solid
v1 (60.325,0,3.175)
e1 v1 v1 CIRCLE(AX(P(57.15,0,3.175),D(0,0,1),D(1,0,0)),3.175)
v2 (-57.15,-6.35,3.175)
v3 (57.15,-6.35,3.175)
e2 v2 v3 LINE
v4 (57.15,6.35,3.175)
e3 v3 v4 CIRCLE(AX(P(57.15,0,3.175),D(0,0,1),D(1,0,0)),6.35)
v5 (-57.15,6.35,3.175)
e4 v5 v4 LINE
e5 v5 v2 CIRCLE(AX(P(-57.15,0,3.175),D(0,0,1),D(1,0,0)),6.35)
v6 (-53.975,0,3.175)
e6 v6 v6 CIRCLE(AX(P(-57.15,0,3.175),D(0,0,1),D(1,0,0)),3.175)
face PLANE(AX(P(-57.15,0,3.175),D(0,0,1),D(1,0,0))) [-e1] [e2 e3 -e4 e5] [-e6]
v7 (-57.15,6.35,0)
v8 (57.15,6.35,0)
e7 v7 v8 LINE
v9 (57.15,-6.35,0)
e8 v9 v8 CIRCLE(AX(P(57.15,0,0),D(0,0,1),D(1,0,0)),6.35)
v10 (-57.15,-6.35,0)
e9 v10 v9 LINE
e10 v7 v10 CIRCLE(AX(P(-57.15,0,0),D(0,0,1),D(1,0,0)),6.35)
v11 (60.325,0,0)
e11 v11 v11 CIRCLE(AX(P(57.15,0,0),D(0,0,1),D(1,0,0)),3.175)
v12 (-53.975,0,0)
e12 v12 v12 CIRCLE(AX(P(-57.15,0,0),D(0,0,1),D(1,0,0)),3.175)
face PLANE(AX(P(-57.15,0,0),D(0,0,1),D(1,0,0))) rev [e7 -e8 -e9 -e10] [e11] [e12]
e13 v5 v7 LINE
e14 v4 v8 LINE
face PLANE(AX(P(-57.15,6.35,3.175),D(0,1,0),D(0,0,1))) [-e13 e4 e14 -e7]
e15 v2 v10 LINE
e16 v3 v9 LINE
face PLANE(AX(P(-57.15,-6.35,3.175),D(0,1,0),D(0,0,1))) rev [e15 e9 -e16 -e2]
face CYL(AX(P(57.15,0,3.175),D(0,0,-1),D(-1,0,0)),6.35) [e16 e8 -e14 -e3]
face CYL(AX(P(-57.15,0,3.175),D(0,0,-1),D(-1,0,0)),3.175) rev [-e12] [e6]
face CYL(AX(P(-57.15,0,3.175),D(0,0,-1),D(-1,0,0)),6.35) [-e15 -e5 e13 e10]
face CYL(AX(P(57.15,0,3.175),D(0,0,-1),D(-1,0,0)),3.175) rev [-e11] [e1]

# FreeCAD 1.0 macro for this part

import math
import FreeCAD as App
import Part
import Sketcher
from FreeCAD import Vector
Q = App.Units.Quantity

doc = App.newDocument("Part")
body = doc.addObject("PartDesign::Body", "Body")

# Sketch on XY plane
sketch1 = doc.addObject("Sketcher::SketchObject", "Sketch")
body.addObject(sketch1)
sketch1.AttachmentSupport = (doc.XY_Plane, [""])
sketch1.MapMode = "FlatFace"
sketch1.addGeometry([
    Part.LineSegment(Vector(57.1, 6.3, 0), Vector(-57.1, 6.3, 0)),  # 0
    Part.ArcOfCircle(Part.Circle(Vector(-57.1, 0, 0), Vector(0, 0, 1), 6.3), math.radians(90), math.radians(270)),  # 1
    Part.LineSegment(Vector(-57.1, -6.3, 0), Vector(57.1, -6.3, 0)),  # 2
    Part.ArcOfCircle(Part.Circle(Vector(57.1, 0, 0), Vector(0, 0, 1), 6.3), math.radians(-90), math.radians(90)),  # 3
    Part.Circle(Vector(57.1, 0, 0), Vector(0, 0, 1), 3.2),  # 4
    Part.Circle(Vector(-57.1, 0, 0), Vector(0, 0, 1), 3.2),  # 5
], False)
sketch1.addConstraint([
    Sketcher.Constraint("Tangent", 0, 2, 1, 1),
    Sketcher.Constraint("Tangent", 1, 2, 2, 1),
    Sketcher.Constraint("Tangent", 2, 2, 3, 1),
    Sketcher.Constraint("Tangent", 3, 2, 0, 1),
    Sketcher.Constraint("Horizontal", 0),
    Sketcher.Constraint("Horizontal", 2),
    Sketcher.Constraint("Coincident", 4, 3, 3, 3),
    Sketcher.Constraint("Coincident", 5, 3, 1, 3),
    Sketcher.Constraint("Equal", 4, 5),
    Sketcher.Constraint("Symmetric", 1, 3, 3, 3, -1, 1),
    Sketcher.Constraint("Diameter", 4, Q("0.25 in")),
    Sketcher.Constraint("Radius", 1, Q("0.25 in")),
    Sketcher.Constraint("DistanceX", 0, 2, 0, 1, Q("4.5 in")),
])
pad1 = doc.addObject("PartDesign::Pad", "Pad")
body.addObject(pad1)
pad1.Profile = sketch1
pad1.Length = Q("0.125 in")

doc.recompute()
